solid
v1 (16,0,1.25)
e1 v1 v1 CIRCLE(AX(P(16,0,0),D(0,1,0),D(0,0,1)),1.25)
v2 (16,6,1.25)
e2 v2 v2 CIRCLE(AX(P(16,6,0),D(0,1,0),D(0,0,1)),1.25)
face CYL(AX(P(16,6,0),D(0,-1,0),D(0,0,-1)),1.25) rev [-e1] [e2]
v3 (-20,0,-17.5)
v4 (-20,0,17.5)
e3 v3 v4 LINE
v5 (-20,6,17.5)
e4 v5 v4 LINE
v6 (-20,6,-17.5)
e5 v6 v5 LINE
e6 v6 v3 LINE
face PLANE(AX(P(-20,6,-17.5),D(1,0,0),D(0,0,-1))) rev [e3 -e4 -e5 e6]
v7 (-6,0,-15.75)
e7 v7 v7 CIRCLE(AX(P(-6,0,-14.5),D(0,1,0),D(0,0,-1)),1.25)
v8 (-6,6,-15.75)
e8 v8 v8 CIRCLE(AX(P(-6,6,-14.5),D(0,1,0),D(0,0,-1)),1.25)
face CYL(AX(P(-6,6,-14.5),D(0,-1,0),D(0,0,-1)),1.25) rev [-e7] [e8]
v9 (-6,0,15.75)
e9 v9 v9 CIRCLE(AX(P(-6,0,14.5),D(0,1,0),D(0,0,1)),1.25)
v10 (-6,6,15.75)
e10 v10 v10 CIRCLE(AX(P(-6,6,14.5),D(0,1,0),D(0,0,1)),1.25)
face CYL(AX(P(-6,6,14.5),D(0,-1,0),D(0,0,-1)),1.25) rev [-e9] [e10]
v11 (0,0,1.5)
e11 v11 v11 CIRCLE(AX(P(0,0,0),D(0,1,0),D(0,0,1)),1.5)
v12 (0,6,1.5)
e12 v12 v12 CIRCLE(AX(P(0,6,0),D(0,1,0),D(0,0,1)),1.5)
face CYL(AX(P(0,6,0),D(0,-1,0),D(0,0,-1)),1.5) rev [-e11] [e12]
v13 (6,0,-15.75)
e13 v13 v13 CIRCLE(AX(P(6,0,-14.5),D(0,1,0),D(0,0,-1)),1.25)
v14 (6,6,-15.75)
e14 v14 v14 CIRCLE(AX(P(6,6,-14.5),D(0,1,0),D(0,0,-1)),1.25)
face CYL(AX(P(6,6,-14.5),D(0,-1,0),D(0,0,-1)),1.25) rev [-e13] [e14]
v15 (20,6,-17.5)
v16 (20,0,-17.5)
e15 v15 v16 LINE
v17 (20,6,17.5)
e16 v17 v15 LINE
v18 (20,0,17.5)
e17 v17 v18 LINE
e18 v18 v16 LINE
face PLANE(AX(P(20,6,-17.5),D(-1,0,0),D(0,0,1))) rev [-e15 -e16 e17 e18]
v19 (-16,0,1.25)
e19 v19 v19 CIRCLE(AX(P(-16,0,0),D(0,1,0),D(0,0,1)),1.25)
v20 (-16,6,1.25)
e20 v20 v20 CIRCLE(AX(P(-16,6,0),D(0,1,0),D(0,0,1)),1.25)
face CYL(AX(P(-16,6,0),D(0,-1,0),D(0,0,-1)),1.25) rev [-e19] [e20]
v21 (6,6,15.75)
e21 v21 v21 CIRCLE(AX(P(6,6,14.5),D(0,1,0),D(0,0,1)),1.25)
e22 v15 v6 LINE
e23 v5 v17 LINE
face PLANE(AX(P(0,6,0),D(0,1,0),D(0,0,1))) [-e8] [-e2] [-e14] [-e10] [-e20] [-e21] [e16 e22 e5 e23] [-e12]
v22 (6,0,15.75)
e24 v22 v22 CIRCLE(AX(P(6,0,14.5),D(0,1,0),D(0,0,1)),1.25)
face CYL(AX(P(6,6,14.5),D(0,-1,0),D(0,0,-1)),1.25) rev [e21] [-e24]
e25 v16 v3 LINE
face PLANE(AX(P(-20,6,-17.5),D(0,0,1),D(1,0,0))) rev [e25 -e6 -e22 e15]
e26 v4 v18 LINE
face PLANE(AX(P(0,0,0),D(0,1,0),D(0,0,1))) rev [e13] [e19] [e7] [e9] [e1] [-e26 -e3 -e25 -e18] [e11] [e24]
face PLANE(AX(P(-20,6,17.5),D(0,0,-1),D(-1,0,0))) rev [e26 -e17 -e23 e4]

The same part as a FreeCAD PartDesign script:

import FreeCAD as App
import Part
import Sketcher

doc = App.newDocument("Part")
body = doc.addObject("PartDesign::Body", "Body")

# Sketch on XZ plane
sketch1 = body.newObject("Sketcher::SketchObject", "Sketch")
sketch1.AttachmentSupport = (doc.getObject("XZ_Plane"), [""])
sketch1.MapMode = "FlatFace"
sketch1.addGeometry(Part.LineSegment(App.Vector(-20, -17.5, 0), App.Vector(-20, 17.5, 0)), False)
sketch1.addGeometry(Part.LineSegment(App.Vector(-20, 17.5, 0), App.Vector(20, 17.5, 0)), False)
sketch1.addGeometry(Part.LineSegment(App.Vector(20, 17.5, 0), App.Vector(20, -17.5, 0)), False)
sketch1.addGeometry(Part.LineSegment(App.Vector(20, -17.5, 0), App.Vector(-20, -17.5, 0)), False)
sketch1.addGeometry(Part.Circle(App.Vector(-6, 14.5, 0), App.Vector(0, 0, 1), 1.2), False)
sketch1.addGeometry(Part.Circle(App.Vector(6, 14.5, 0), App.Vector(0, 0, 1), 1.2), False)
sketch1.addGeometry(Part.Circle(App.Vector(-16, 0, 0), App.Vector(0, 0, 1), 1.2), False)
sketch1.addGeometry(Part.Circle(App.Vector(-6, -14.5, 0), App.Vector(0, 0, 1), 1.2), False)
sketch1.addGeometry(Part.Circle(App.Vector(0, 0, 0), App.Vector(0, 0, 1), 1.5), False)
sketch1.addGeometry(Part.Circle(App.Vector(16, 0, 0), App.Vector(0, 0, 1), 1.2), False)
sketch1.addGeometry(Part.Circle(App.Vector(6, -14.5, 0), App.Vector(0, 0, 1), 1.2), False)
sketch1.addConstraint(Sketcher.Constraint("Coincident", 0, 2, 1, 1))
sketch1.addConstraint(Sketcher.Constraint("Coincident", 1, 2, 2, 1))
sketch1.addConstraint(Sketcher.Constraint("Coincident", 2, 2, 3, 1))
sketch1.addConstraint(Sketcher.Constraint("Coincident", 3, 2, 0, 1))
sketch1.addConstraint(Sketcher.Constraint("Vertical", 0))
sketch1.addConstraint(Sketcher.Constraint("Horizontal", 1))
sketch1.addConstraint(Sketcher.Constraint("Vertical", 2))
sketch1.addConstraint(Sketcher.Constraint("Horizontal", 3))
sketch1.addConstraint(Sketcher.Constraint("Coincident", 8, 3, -1, 1))
sketch1.addConstraint(Sketcher.Constraint("Equal", 4, 5))
sketch1.addConstraint(Sketcher.Constraint("Equal", 5, 6))
sketch1.addConstraint(Sketcher.Constraint("Equal", 6, 7))
sketch1.addConstraint(Sketcher.Constraint("Equal", 7, 9))
sketch1.addConstraint(Sketcher.Constraint("Equal", 9, 10))
sketch1.addConstraint(Sketcher.Constraint("Symmetric", 5, 3, 7, 3, -1, 1))
sketch1.addConstraint(Sketcher.Constraint("Symmetric", 6, 3, 9, 3, -1, 1))
sketch1.addConstraint(Sketcher.Constraint("Symmetric", 4, 3, 10, 3, -1, 1))
sketch1.addConstraint(Sketcher.Constraint("Symmetric", 0, 2, 2, 2, -1, 1))
sketch1.addConstraint(Sketcher.Constraint("Symmetric", 4, 3, 5, 3, -2))
sketch1.addConstraint(Sketcher.Constraint("PointOnObject", 6, 3, -1))
sketch1.addConstraint(Sketcher.Constraint("Diameter", 8, 3.0))
sketch1.addConstraint(Sketcher.Constraint("Diameter", 4, 2.5))
sketch1.addConstraint(Sketcher.Constraint("DistanceX", 1, 1, 1, 2, 40.0))
sketch1.addConstraint(Sketcher.Constraint("DistanceY", 0, 1, 0, 2, 35.0))
sketch1.addConstraint(Sketcher.Constraint("DistanceX", 4, 3, -1, 1, 6.0))
sketch1.addConstraint(Sketcher.Constraint("DistanceX", 6, 3, -1, 1, 16.0))
sketch1.addConstraint(Sketcher.Constraint("DistanceY", 7, 3, 4, 3, 29.0))
pad1 = body.newObject("PartDesign::Pad", "Pad")
pad1.Profile = sketch1
pad1.Length = 6
pad1.Reversed = True

doc.recompute()
